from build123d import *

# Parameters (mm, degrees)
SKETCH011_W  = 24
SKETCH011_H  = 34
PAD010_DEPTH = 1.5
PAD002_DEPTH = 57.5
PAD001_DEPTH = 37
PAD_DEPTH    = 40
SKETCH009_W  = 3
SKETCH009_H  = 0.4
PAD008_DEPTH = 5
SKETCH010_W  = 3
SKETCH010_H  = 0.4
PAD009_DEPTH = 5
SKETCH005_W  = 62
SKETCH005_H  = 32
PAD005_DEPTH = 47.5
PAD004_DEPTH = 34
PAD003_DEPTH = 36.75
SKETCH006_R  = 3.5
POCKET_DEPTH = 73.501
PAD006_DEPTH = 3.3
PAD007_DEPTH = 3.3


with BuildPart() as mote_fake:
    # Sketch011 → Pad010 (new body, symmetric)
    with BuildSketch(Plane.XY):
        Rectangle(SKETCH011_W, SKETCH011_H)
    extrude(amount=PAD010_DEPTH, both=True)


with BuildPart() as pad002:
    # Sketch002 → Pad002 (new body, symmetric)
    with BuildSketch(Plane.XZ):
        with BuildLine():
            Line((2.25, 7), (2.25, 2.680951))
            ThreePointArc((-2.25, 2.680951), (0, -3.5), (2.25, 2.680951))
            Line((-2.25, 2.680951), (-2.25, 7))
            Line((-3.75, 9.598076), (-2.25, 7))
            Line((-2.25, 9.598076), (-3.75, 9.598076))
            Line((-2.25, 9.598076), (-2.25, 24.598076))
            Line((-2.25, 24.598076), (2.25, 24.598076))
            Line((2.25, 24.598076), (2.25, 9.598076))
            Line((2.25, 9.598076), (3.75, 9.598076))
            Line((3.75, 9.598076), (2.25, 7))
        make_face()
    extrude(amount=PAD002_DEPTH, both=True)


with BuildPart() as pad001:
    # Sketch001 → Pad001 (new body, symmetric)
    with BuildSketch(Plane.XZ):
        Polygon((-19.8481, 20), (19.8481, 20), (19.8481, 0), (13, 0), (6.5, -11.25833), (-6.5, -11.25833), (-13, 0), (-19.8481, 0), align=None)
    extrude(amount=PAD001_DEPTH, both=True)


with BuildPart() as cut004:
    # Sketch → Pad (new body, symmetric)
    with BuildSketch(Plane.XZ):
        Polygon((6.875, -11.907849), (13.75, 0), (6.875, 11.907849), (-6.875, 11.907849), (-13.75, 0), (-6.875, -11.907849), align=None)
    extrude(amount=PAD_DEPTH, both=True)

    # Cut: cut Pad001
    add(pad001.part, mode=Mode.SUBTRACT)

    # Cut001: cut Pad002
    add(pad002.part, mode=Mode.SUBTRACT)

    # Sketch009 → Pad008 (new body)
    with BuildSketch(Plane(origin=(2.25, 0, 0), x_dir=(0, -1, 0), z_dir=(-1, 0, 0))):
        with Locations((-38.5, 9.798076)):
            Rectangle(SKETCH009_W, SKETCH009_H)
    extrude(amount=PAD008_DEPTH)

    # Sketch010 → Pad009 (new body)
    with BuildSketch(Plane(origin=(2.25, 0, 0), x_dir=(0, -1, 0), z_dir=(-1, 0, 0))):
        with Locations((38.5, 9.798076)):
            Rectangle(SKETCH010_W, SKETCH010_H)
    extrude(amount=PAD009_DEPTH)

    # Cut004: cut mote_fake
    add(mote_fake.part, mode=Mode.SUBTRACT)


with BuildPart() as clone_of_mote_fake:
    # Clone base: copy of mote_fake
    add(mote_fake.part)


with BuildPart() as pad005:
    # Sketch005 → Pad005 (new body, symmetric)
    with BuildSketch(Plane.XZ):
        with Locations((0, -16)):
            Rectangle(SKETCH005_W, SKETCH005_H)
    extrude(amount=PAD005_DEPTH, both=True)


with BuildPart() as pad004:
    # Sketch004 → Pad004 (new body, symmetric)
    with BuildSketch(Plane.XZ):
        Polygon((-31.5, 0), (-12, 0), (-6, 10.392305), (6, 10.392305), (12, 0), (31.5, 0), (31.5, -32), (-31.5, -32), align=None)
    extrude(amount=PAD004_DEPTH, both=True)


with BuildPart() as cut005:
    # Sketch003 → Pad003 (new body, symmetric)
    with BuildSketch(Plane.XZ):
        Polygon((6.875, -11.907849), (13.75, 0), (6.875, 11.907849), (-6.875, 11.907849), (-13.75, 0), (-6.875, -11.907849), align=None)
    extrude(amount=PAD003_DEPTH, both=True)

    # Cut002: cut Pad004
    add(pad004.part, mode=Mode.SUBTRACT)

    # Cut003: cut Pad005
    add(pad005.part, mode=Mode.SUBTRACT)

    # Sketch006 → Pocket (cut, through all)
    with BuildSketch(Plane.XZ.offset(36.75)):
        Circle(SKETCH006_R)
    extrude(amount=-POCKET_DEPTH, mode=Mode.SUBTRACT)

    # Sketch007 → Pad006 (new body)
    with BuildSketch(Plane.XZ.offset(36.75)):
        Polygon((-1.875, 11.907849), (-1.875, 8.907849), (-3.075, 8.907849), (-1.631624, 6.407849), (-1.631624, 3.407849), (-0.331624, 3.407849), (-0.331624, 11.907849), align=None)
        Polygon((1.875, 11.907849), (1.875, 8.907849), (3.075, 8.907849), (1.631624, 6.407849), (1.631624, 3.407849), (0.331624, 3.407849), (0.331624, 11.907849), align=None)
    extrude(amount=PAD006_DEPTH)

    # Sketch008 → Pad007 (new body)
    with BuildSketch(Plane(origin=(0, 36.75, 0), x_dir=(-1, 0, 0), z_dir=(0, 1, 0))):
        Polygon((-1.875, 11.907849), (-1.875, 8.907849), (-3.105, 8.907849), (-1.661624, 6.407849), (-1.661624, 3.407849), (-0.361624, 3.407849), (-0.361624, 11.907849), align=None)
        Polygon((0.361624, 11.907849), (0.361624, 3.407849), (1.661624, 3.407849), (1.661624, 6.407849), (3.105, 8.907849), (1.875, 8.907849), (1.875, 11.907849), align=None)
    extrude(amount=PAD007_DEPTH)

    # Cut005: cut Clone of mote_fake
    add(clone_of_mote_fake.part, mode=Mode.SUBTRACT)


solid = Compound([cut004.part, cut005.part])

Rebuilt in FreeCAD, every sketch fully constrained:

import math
import FreeCAD as App
import Part
import Sketcher
from FreeCAD import Vector
Q = App.Units.Quantity


def add_polygon(sketch, points):
    """Adds a closed chain of lines whose ends are joined by coincident constraints."""
    first, n = sketch.GeometryCount, len(points)
    for a, b in zip(points, points[1:] + points[:1]):
        sketch.addGeometry(Part.LineSegment(App.Vector(*a, 0), App.Vector(*b, 0)), False)
    for i in range(n):
        sketch.addConstraint(Sketcher.Constraint("Coincident", first + i, 2, first + (i + 1) % n, 1))

doc = App.newDocument("Part")
body = doc.addObject("PartDesign::Body", "Body")

sketch1 = doc.addObject("Sketcher::SketchObject", "Sketch")
body.addObject(sketch1)
sketch1.AttachmentSupport = (doc.XY_Plane, [""])
sketch1.MapMode = "FlatFace"
add_polygon(sketch1, [(-12, 17), (-12, -17), (12, -17), (12, 17)])
sketch1.addConstraint(Sketcher.Constraint("Vertical", 0))
sketch1.addConstraint(Sketcher.Constraint("Horizontal", 1))
sketch1.addConstraint(Sketcher.Constraint("Vertical", 2))
sketch1.addConstraint(Sketcher.Constraint("Horizontal", 3))
sketch1.addConstraint(Sketcher.Constraint("Symmetric", 0, 2, 2, 2, -1, 1))
sketch1.addConstraint(Sketcher.Constraint("DistanceX", 1, 1, 1, 2, Q("24 mm")))
sketch1.addConstraint(Sketcher.Constraint("DistanceY", 0, 2, 0, 1, Q("34 mm")))
pad1 = doc.addObject("PartDesign::Pad", "Pad")
body.addObject(pad1)
pad1.Profile = sketch1
pad1.Length = 3
pad1.Midplane = True
body2 = doc.addObject("PartDesign::Body", "Body001")

sketch2 = doc.addObject("Sketcher::SketchObject", "Sketch001")
body2.addObject(sketch2)
sketch2.AttachmentSupport = (doc.getObject("XZ_Plane001"), [""])
sketch2.MapMode = "FlatFace"
sketch2.addGeometry(Part.LineSegment(Vector(2.2, 2.7, 0), Vector(2.2, 7, 0)), False)
sketch2.addGeometry(Part.LineSegment(Vector(2.2, 7, 0), Vector(3.8, 9.6, 0)), False)
sketch2.addGeometry(Part.LineSegment(Vector(3.8, 9.6, 0), Vector(2.2, 9.6, 0)), False)
sketch2.addGeometry(Part.LineSegment(Vector(2.2, 9.6, 0), Vector(2.2, 24.6, 0)), False)
sketch2.addGeometry(Part.LineSegment(Vector(2.2, 24.6, 0), Vector(-2.2, 24.6, 0)), False)
sketch2.addGeometry(Part.LineSegment(Vector(-2.2, 24.6, 0), Vector(-2.2, 9.6, 0)), False)
sketch2.addGeometry(Part.LineSegment(Vector(-2.2, 9.6, 0), Vector(-3.8, 9.6, 0)), False)
sketch2.addGeometry(Part.LineSegment(Vector(-3.8, 9.6, 0), Vector(-2.2, 7, 0)), False)
sketch2.addGeometry(Part.LineSegment(Vector(-2.2, 7, 0), Vector(-2.2, 2.7, 0)), False)
sketch2.addGeometry(Part.ArcOfCircle(Part.Circle(Vector(0, 0, 0), Vector(0, 0, 1), 3.5), math.radians(130), math.radians(410)), False)
sketch2.addConstraint(Sketcher.Constraint("Coincident", 0, 2, 1, 1))
sketch2.addConstraint(Sketcher.Constraint("Coincident", 1, 2, 2, 1))
sketch2.addConstraint(Sketcher.Constraint("Coincident", 2, 2, 3, 1))
sketch2.addConstraint(Sketcher.Constraint("Coincident", 3, 2, 4, 1))
sketch2.addConstraint(Sketcher.Constraint("Coincident", 4, 2, 5, 1))
sketch2.addConstraint(Sketcher.Constraint("Coincident", 5, 2, 6, 1))
sketch2.addConstraint(Sketcher.Constraint("Coincident", 6, 2, 7, 1))
sketch2.addConstraint(Sketcher.Constraint("Coincident", 7, 2, 8, 1))
sketch2.addConstraint(Sketcher.Constraint("Coincident", 8, 2, 9, 1))
sketch2.addConstraint(Sketcher.Constraint("Coincident", 9, 2, 0, 1))
sketch2.addConstraint(Sketcher.Constraint("Vertical", 0))
sketch2.addConstraint(Sketcher.Constraint("Horizontal", 2))
sketch2.addConstraint(Sketcher.Constraint("Vertical", 3))
sketch2.addConstraint(Sketcher.Constraint("Horizontal", 4))
sketch2.addConstraint(Sketcher.Constraint("Vertical", 5))
sketch2.addConstraint(Sketcher.Constraint("Horizontal", 6))
sketch2.addConstraint(Sketcher.Constraint("Vertical", 8))
sketch2.addConstraint(Sketcher.Constraint("Coincident", 9, 3, -1, 1))
sketch2.addConstraint(Sketcher.Constraint("Symmetric", 2, 2, 5, 2, -2))
sketch2.addConstraint(Sketcher.Constraint("Symmetric", 0, 2, 7, 2, -2))
sketch2.addConstraint(Sketcher.Constraint("Vertical", 0, 2, 2, 2))
sketch2.addConstraint(Sketcher.Constraint("Equal", 2, 6))
sketch2.addConstraint(Sketcher.Constraint("Radius", 9, Q("3.5 mm")))
sketch2.addConstraint(Sketcher.Constraint("DistanceY", 3, 1, 3, 2, Q("15 mm")))
sketch2.addConstraint(Sketcher.Constraint("Angle", 1, Q("59.999998 deg")))
sketch2.addConstraint(Sketcher.Constraint("Distance", 1, Q("3 mm")))
sketch2.addConstraint(Sketcher.Constraint("DistanceX", 4, 2, 4, 1, Q("4.5 mm")))
sketch2.addConstraint(Sketcher.Constraint("DistanceY", -1, 1, 0, 2, Q("7 mm")))
pad2 = doc.addObject("PartDesign::Pad", "Pad001")
body2.addObject(pad2)
pad2.Profile = sketch2
pad2.Length = 115
pad2.Midplane = True
body3 = doc.addObject("PartDesign::Body", "Body002")

sketch3 = doc.addObject("Sketcher::SketchObject", "Sketch002")
body3.addObject(sketch3)
sketch3.AttachmentSupport = (doc.getObject("XZ_Plane002"), [""])
sketch3.MapMode = "FlatFace"
add_polygon(sketch3, [(20, 20), (-20, 20), (-20, 0), (-13, 0), (-6, -11), (6, -11), (13, 0), (20, 0)])
sketch3.addConstraint(Sketcher.Constraint("Horizontal", 0))
sketch3.addConstraint(Sketcher.Constraint("Vertical", 1))
sketch3.addConstraint(Sketcher.Constraint("Horizontal", 2))
sketch3.addConstraint(Sketcher.Constraint("Horizontal", 4))
sketch3.addConstraint(Sketcher.Constraint("Horizontal", 6))
sketch3.addConstraint(Sketcher.Constraint("Vertical", 7))
sketch3.addConstraint(Sketcher.Constraint("Symmetric", 2, 2, 5, 2, -1, 1))
sketch3.addConstraint(Sketcher.Constraint("Symmetric", 1, 2, 6, 2, -2))
sketch3.addConstraint(Sketcher.Constraint("Equal", 3, 5))
sketch3.addConstraint(Sketcher.Constraint("DistanceX", 4, 1, 4, 2, Q("13 mm")))
sketch3.addConstraint(Sketcher.Constraint("DistanceY", 1, 2, 1, 1, Q("20 mm")))
sketch3.addConstraint(Sketcher.Constraint("Angle", 3, Q("-59.999999 deg")))
sketch3.addConstraint(Sketcher.Constraint("Distance", 3, Q("13 mm")))
sketch3.addConstraint(Sketcher.Constraint("DistanceX", 0, 2, 0, 1, Q("39.6962 mm")))
pad3 = doc.addObject("PartDesign::Pad", "Pad002")
body3.addObject(pad3)
pad3.Profile = sketch3
pad3.Length = 74
pad3.Midplane = True
body4 = doc.addObject("PartDesign::Body", "Body003")

sketch4 = doc.addObject("Sketcher::SketchObject", "Sketch003")
body4.addObject(sketch4)
sketch4.AttachmentSupport = (doc.getObject("XZ_Plane003"), [""])
sketch4.MapMode = "FlatFace"
add_polygon(sketch4, [(7, -12), (14, 0), (7, 12), (-7, 12), (-14, 0), (-7, -12)])
sketch4.addConstraint(Sketcher.Constraint("Horizontal", 2))
sketch4.addConstraint(Sketcher.Constraint("Horizontal", 5))
sketch4.addConstraint(Sketcher.Constraint("Symmetric", 0, 2, 3, 2, -1, 1))
sketch4.addConstraint(Sketcher.Constraint("Symmetric", 1, 2, 4, 2, -1, 1))
sketch4.addConstraint(Sketcher.Constraint("PointOnObject", 0, 2, -1))
sketch4.addConstraint(Sketcher.Constraint("Parallel", 0, 3))
sketch4.addConstraint(Sketcher.Constraint("Vertical", 2, 2, 4, 2))
sketch4.addConstraint(Sketcher.Constraint("Angle", 0, Q("59.999999 deg")))
sketch4.addConstraint(Sketcher.Constraint("DistanceX", 2, 2, 2, 1, Q("13.75 mm")))
sketch4.addConstraint(Sketcher.Constraint("DistanceX", 3, 2, 0, 2, Q("27.5 mm")))
pad4 = doc.addObject("PartDesign::Pad", "Pad003")
body4.addObject(pad4)
pad4.Profile = sketch4
pad4.Length = 80
pad4.Midplane = True
doc.recompute()

boolean = doc.addObject("PartDesign::Boolean", "Boolean")
body4.addObject(boolean)
boolean.Type = "Cut"
boolean.addObjects([body3])
doc.recompute()

boolean2 = doc.addObject("PartDesign::Boolean", "Boolean001")
body4.addObject(boolean2)
boolean2.Type = "Cut"
boolean2.addObjects([body2])

sketch5 = doc.addObject("Sketcher::SketchObject", "Sketch004")
body4.addObject(sketch5)
sketch5.AttachmentSupport = (doc.getObject("YZ_Plane003"), [""])
sketch5.MapMode = "FlatFace"
sketch5.AttachmentOffset = App.Placement(Vector(0, 0, 2.25), App.Rotation())
add_polygon(sketch5, [(40, 10), (40, 9.6), (37, 9.6), (37, 10)])
sketch5.addConstraint(Sketcher.Constraint("Vertical", 0))
sketch5.addConstraint(Sketcher.Constraint("Horizontal", 1))
sketch5.addConstraint(Sketcher.Constraint("Vertical", 2))
sketch5.addConstraint(Sketcher.Constraint("Horizontal", 3))
sketch5.addConstraint(Sketcher.Constraint("DistanceX", 1, 2, 1, 1, Q("3 mm")))
sketch5.addConstraint(Sketcher.Constraint("DistanceY", 0, 2, 0, 1, Q("0.4 mm")))
sketch5.addConstraint(Sketcher.Constraint("DistanceX", -1, 1, 0, 2, Q("40 mm")))
sketch5.addConstraint(Sketcher.Constraint("DistanceY", -1, 1, 0, 2, Q("9.598076 mm")))
pad5 = doc.addObject("PartDesign::Pad", "Pad004")
body4.addObject(pad5)
pad5.Profile = sketch5
pad5.Length = 5
pad5.Reversed = True

sketch6 = doc.addObject("Sketcher::SketchObject", "Sketch005")
body4.addObject(sketch6)
sketch6.AttachmentSupport = (doc.getObject("YZ_Plane003"), [""])
sketch6.MapMode = "FlatFace"
sketch6.AttachmentOffset = App.Placement(Vector(0, 0, 2.25), App.Rotation())
add_polygon(sketch6, [(-37, 10), (-37, 9.6), (-40, 9.6), (-40, 10)])
sketch6.addConstraint(Sketcher.Constraint("Vertical", 0))
sketch6.addConstraint(Sketcher.Constraint("Horizontal", 1))
sketch6.addConstraint(Sketcher.Constraint("Vertical", 2))
sketch6.addConstraint(Sketcher.Constraint("Horizontal", 3))
sketch6.addConstraint(Sketcher.Constraint("DistanceX", 1, 2, 1, 1, Q("3 mm")))
sketch6.addConstraint(Sketcher.Constraint("DistanceY", 0, 2, 0, 1, Q("0.4 mm")))
sketch6.addConstraint(Sketcher.Constraint("DistanceX", 0, 2, -1, 1, Q("37 mm")))
sketch6.addConstraint(Sketcher.Constraint("DistanceY", -1, 1, 0, 2, Q("9.598076 mm")))
pad6 = doc.addObject("PartDesign::Pad", "Pad005")
body4.addObject(pad6)
pad6.Profile = sketch6
pad6.Length = 5
pad6.Reversed = True
doc.recompute()

body5 = doc.addObject("PartDesign::Body", "Body004")
body5.BaseFeature = body
boolean3 = doc.addObject("PartDesign::Boolean", "Boolean002")
body4.addObject(boolean3)
boolean3.Type = "Cut"
boolean3.addObjects([body5])
doc.recompute()
body6 = doc.addObject("PartDesign::Body", "Body005")

sketch7 = doc.addObject("Sketcher::SketchObject", "Sketch006")
body6.addObject(sketch7)
sketch7.AttachmentSupport = (doc.getObject("XZ_Plane005"), [""])
sketch7.MapMode = "FlatFace"
add_polygon(sketch7, [(-31, 0), (-31, -32), (31, -32), (31, 0)])
sketch7.addConstraint(Sketcher.Constraint("Vertical", 0))
sketch7.addConstraint(Sketcher.Constraint("Horizontal", 1))
sketch7.addConstraint(Sketcher.Constraint("Vertical", 2))
sketch7.addConstraint(Sketcher.Constraint("Horizontal", 3))
sketch7.addConstraint(Sketcher.Constraint("Symmetric", 2, 2, 3, 2, -1, 1))
sketch7.addConstraint(Sketcher.Constraint("DistanceX", 1, 1, 1, 2, Q("62 mm")))
sketch7.addConstraint(Sketcher.Constraint("DistanceY", 0, 2, 0, 1, Q("32 mm")))
pad7 = doc.addObject("PartDesign::Pad", "Pad006")
body6.addObject(pad7)
pad7.Profile = sketch7
pad7.Length = 95
pad7.Midplane = True
body7 = doc.addObject("PartDesign::Body", "Body006")

sketch8 = doc.addObject("Sketcher::SketchObject", "Sketch007")
body7.addObject(sketch8)
sketch8.AttachmentSupport = (doc.getObject("XZ_Plane006"), [""])
sketch8.MapMode = "FlatFace"
add_polygon(sketch8, [(-12, 0), (-32, 0), (-32, -32), (32, -32), (32, 0), (12, 0), (6, 10), (-6, 10)])
sketch8.addConstraint(Sketcher.Constraint("Horizontal", 0))
sketch8.addConstraint(Sketcher.Constraint("Vertical", 1))
sketch8.addConstraint(Sketcher.Constraint("Horizontal", 2))
sketch8.addConstraint(Sketcher.Constraint("Vertical", 3))
sketch8.addConstraint(Sketcher.Constraint("Horizontal", 4))
sketch8.addConstraint(Sketcher.Constraint("Horizontal", 6))
sketch8.addConstraint(Sketcher.Constraint("Symmetric", 0, 2, 3, 2, -1, 1))
sketch8.addConstraint(Sketcher.Constraint("Symmetric", 4, 2, 7, 2, -2))
sketch8.addConstraint(Sketcher.Constraint("Equal", 5, 7))
sketch8.addConstraint(Sketcher.Constraint("DistanceX", 2, 1, 2, 2, Q("63 mm")))
sketch8.addConstraint(Sketcher.Constraint("DistanceX", 6, 2, 6, 1, Q("12 mm")))
sketch8.addConstraint(Sketcher.Constraint("DistanceY", 1, 2, 1, 1, Q("32 mm")))
sketch8.addConstraint(Sketcher.Constraint("Angle", 5, Q("120 deg")))
sketch8.addConstraint(Sketcher.Constraint("Distance", 5, Q("12 mm")))
pad8 = doc.addObject("PartDesign::Pad", "Pad007")
body7.addObject(pad8)
pad8.Profile = sketch8
pad8.Length = 68
pad8.Midplane = True
body8 = doc.addObject("PartDesign::Body", "Body007")

sketch9 = doc.addObject("Sketcher::SketchObject", "Sketch008")
body8.addObject(sketch9)
sketch9.AttachmentSupport = (doc.getObject("XZ_Plane007"), [""])
sketch9.MapMode = "FlatFace"
add_polygon(sketch9, [(7, -12), (14, 0), (7, 12), (-7, 12), (-14, 0), (-7, -12)])
sketch9.addConstraint(Sketcher.Constraint("Horizontal", 2))
sketch9.addConstraint(Sketcher.Constraint("Horizontal", 5))
sketch9.addConstraint(Sketcher.Constraint("Symmetric", 0, 2, 3, 2, -1, 1))
sketch9.addConstraint(Sketcher.Constraint("Symmetric", 1, 2, 4, 2, -1, 1))
sketch9.addConstraint(Sketcher.Constraint("PointOnObject", 0, 2, -1))
sketch9.addConstraint(Sketcher.Constraint("Parallel", 0, 3))
sketch9.addConstraint(Sketcher.Constraint("Vertical", 2, 2, 4, 2))
sketch9.addConstraint(Sketcher.Constraint("Angle", 0, Q("59.999999 deg")))
sketch9.addConstraint(Sketcher.Constraint("DistanceX", 2, 2, 2, 1, Q("13.75 mm")))
sketch9.addConstraint(Sketcher.Constraint("DistanceX", 3, 2, 0, 2, Q("27.5 mm")))
pad9 = doc.addObject("PartDesign::Pad", "Pad008")
body8.addObject(pad9)
pad9.Profile = sketch9
pad9.Length = 73.5
pad9.Midplane = True
doc.recompute()

boolean4 = doc.addObject("PartDesign::Boolean", "Boolean003")
body8.addObject(boolean4)
boolean4.Type = "Cut"
boolean4.addObjects([body7])
doc.recompute()

boolean5 = doc.addObject("PartDesign::Boolean", "Boolean004")
body8.addObject(boolean5)
boolean5.Type = "Cut"
boolean5.addObjects([body6])

sketch10 = doc.addObject("Sketcher::SketchObject", "Sketch009")
body8.addObject(sketch10)
sketch10.AttachmentSupport = (doc.getObject("XZ_Plane007"), [""])
sketch10.MapMode = "FlatFace"
sketch10.AttachmentOffset = App.Placement(Vector(0, 0, 36.75), App.Rotation())
sketch10.addGeometry(Part.Circle(Vector(0, 0, 0), Vector(0, 0, 1), 3.5), False)
sketch10.addConstraint(Sketcher.Constraint("Coincident", 0, 3, -1, 1))
sketch10.addConstraint(Sketcher.Constraint("Diameter", 0, Q("7 mm")))
pocket1 = doc.addObject("PartDesign::Pocket", "Pocket")
body8.addObject(pocket1)
pocket1.Profile = sketch10
pocket1.Type = "ThroughAll"

sketch11 = doc.addObject("Sketcher::SketchObject", "Sketch010")
body8.addObject(sketch11)
sketch11.AttachmentSupport = (doc.getObject("XZ_Plane007"), [""])
sketch11.MapMode = "FlatFace"
sketch11.AttachmentOffset = App.Placement(Vector(0, 0, 36.75), App.Rotation())
add_polygon(sketch11, [(-1.9, 11.9), (-1.9, 8.9), (-3.1, 8.9), (-1.6, 6.4), (-1.6, 3.4), (-0.3, 3.4), (-0.3, 11.9)])
add_polygon(sketch11, [(1.9, 8.9), (1.9, 11.9), (0.3, 11.9), (0.3, 3.4), (1.6, 3.4), (1.6, 6.4), (3.1, 8.9)])
sketch11.addConstraint(Sketcher.Constraint("Vertical", 0))
sketch11.addConstraint(Sketcher.Constraint("Horizontal", 1))
sketch11.addConstraint(Sketcher.Constraint("Vertical", 3))
sketch11.addConstraint(Sketcher.Constraint("Horizontal", 4))
sketch11.addConstraint(Sketcher.Constraint("Vertical", 5))
sketch11.addConstraint(Sketcher.Constraint("Horizontal", 6))
sketch11.addConstraint(Sketcher.Constraint("Vertical", 7))
sketch11.addConstraint(Sketcher.Constraint("Horizontal", 8))
sketch11.addConstraint(Sketcher.Constraint("Vertical", 9))
sketch11.addConstraint(Sketcher.Constraint("Horizontal", 10))
sketch11.addConstraint(Sketcher.Constraint("Vertical", 11))
sketch11.addConstraint(Sketcher.Constraint("Horizontal", 13))
sketch11.addConstraint(Sketcher.Constraint("Symmetric", 6, 2, 7, 2, -2))
sketch11.addConstraint(Sketcher.Constraint("Symmetric", 4, 2, 9, 2, -2))
sketch11.addConstraint(Sketcher.Constraint("Symmetric", 2, 2, 11, 2, -2))
sketch11.addConstraint(Sketcher.Constraint("Symmetric", 1, 2, 12, 2, -2))
sketch11.addConstraint(Sketcher.Constraint("Equal", 0, 3))
sketch11.addConstraint(Sketcher.Constraint("DistanceY", 0, 2, 0, 1, Q("3 mm")))
sketch11.addConstraint(Sketcher.Constraint("Angle", 2, Q("-59.999994 deg")))
sketch11.addConstraint(Sketcher.Constraint("DistanceX", 1, 2, 1, 1, Q("1.2 mm")))
sketch11.addConstraint(Sketcher.Constraint("DistanceX", 4, 1, 4, 2, Q("1.3 mm")))
sketch11.addConstraint(Sketcher.Constraint("DistanceY", 5, 1, 5, 2, Q("8.5 mm")))
sketch11.addConstraint(Sketcher.Constraint("DistanceX", 6, 2, 7, 2, Q("3.75 mm")))
sketch11.addConstraint(Sketcher.Constraint("DistanceY", -1, 1, 0, 2, Q("8.907849 mm")))
pad10 = doc.addObject("PartDesign::Pad", "Pad009")
body8.addObject(pad10)
pad10.Profile = sketch11
pad10.Length = 3.3

sketch12 = doc.addObject("Sketcher::SketchObject", "Sketch011")
body8.addObject(sketch12)
sketch12.AttachmentSupport = (doc.getObject("XZ_Plane007"), [""])
sketch12.MapMode = "FlatFace"
sketch12.AttachmentOffset = App.Placement(Vector(0, 0, -36.75), App.Rotation())
add_polygon(sketch12, [(1.9, 11.9), (1.9, 8.9), (3.1, 8.9), (1.7, 6.4), (1.7, 3.4), (0.4, 3.4), (0.4, 11.9)])
add_polygon(sketch12, [(-0.4, 11.9), (-0.4, 3.4), (-1.7, 3.4), (-1.7, 6.4), (-3.1, 8.9), (-1.9, 8.9), (-1.9, 11.9)])
sketch12.addConstraint(Sketcher.Constraint("Vertical", 0))
sketch12.addConstraint(Sketcher.Constraint("Horizontal", 1))
sketch12.addConstraint(Sketcher.Constraint("Vertical", 3))
sketch12.addConstraint(Sketcher.Constraint("Horizontal", 4))
sketch12.addConstraint(Sketcher.Constraint("Vertical", 5))
sketch12.addConstraint(Sketcher.Constraint("Horizontal", 6))
sketch12.addConstraint(Sketcher.Constraint("Vertical", 7))
sketch12.addConstraint(Sketcher.Constraint("Horizontal", 8))
sketch12.addConstraint(Sketcher.Constraint("Vertical", 9))
sketch12.addConstraint(Sketcher.Constraint("Horizontal", 11))
sketch12.addConstraint(Sketcher.Constraint("Vertical", 12))
sketch12.addConstraint(Sketcher.Constraint("Horizontal", 13))
sketch12.addConstraint(Sketcher.Constraint("Symmetric", 4, 2, 7, 2, -2))
sketch12.addConstraint(Sketcher.Constraint("Symmetric", 2, 2, 9, 2, -2))
sketch12.addConstraint(Sketcher.Constraint("Symmetric", 1, 2, 10, 2, -2))
sketch12.addConstraint(Sketcher.Constraint("Symmetric", 6, 2, 12, 2, -2))
sketch12.addConstraint(Sketcher.Constraint("Equal", 0, 3))
sketch12.addConstraint(Sketcher.Constraint("DistanceY", 0, 2, 0, 1, Q("3 mm")))
sketch12.addConstraint(Sketcher.Constraint("Angle", 2, Q("-120.000006 deg")))
sketch12.addConstraint(Sketcher.Constraint("DistanceX", 4, 2, 4, 1, Q("1.3 mm")))
sketch12.addConstraint(Sketcher.Constraint("DistanceY", 5, 1, 5, 2, Q("8.5 mm")))
sketch12.addConstraint(Sketcher.Constraint("DistanceX", 1, 1, 1, 2, Q("1.23 mm")))
sketch12.addConstraint(Sketcher.Constraint("DistanceX", 10, 2, 0, 2, Q("4.98 mm")))
sketch12.addConstraint(Sketcher.Constraint("DistanceY", -1, 1, 0, 2, Q("8.907849 mm")))
pad11 = doc.addObject("PartDesign::Pad", "Pad010")
body8.addObject(pad11)
pad11.Profile = sketch12
pad11.Length = 3.3
pad11.Reversed = True
doc.recompute()

boolean6 = doc.addObject("PartDesign::Boolean", "Boolean005")
body8.addObject(boolean6)
boolean6.Type = "Cut"
boolean6.addObjects([body])

doc.recompute()
